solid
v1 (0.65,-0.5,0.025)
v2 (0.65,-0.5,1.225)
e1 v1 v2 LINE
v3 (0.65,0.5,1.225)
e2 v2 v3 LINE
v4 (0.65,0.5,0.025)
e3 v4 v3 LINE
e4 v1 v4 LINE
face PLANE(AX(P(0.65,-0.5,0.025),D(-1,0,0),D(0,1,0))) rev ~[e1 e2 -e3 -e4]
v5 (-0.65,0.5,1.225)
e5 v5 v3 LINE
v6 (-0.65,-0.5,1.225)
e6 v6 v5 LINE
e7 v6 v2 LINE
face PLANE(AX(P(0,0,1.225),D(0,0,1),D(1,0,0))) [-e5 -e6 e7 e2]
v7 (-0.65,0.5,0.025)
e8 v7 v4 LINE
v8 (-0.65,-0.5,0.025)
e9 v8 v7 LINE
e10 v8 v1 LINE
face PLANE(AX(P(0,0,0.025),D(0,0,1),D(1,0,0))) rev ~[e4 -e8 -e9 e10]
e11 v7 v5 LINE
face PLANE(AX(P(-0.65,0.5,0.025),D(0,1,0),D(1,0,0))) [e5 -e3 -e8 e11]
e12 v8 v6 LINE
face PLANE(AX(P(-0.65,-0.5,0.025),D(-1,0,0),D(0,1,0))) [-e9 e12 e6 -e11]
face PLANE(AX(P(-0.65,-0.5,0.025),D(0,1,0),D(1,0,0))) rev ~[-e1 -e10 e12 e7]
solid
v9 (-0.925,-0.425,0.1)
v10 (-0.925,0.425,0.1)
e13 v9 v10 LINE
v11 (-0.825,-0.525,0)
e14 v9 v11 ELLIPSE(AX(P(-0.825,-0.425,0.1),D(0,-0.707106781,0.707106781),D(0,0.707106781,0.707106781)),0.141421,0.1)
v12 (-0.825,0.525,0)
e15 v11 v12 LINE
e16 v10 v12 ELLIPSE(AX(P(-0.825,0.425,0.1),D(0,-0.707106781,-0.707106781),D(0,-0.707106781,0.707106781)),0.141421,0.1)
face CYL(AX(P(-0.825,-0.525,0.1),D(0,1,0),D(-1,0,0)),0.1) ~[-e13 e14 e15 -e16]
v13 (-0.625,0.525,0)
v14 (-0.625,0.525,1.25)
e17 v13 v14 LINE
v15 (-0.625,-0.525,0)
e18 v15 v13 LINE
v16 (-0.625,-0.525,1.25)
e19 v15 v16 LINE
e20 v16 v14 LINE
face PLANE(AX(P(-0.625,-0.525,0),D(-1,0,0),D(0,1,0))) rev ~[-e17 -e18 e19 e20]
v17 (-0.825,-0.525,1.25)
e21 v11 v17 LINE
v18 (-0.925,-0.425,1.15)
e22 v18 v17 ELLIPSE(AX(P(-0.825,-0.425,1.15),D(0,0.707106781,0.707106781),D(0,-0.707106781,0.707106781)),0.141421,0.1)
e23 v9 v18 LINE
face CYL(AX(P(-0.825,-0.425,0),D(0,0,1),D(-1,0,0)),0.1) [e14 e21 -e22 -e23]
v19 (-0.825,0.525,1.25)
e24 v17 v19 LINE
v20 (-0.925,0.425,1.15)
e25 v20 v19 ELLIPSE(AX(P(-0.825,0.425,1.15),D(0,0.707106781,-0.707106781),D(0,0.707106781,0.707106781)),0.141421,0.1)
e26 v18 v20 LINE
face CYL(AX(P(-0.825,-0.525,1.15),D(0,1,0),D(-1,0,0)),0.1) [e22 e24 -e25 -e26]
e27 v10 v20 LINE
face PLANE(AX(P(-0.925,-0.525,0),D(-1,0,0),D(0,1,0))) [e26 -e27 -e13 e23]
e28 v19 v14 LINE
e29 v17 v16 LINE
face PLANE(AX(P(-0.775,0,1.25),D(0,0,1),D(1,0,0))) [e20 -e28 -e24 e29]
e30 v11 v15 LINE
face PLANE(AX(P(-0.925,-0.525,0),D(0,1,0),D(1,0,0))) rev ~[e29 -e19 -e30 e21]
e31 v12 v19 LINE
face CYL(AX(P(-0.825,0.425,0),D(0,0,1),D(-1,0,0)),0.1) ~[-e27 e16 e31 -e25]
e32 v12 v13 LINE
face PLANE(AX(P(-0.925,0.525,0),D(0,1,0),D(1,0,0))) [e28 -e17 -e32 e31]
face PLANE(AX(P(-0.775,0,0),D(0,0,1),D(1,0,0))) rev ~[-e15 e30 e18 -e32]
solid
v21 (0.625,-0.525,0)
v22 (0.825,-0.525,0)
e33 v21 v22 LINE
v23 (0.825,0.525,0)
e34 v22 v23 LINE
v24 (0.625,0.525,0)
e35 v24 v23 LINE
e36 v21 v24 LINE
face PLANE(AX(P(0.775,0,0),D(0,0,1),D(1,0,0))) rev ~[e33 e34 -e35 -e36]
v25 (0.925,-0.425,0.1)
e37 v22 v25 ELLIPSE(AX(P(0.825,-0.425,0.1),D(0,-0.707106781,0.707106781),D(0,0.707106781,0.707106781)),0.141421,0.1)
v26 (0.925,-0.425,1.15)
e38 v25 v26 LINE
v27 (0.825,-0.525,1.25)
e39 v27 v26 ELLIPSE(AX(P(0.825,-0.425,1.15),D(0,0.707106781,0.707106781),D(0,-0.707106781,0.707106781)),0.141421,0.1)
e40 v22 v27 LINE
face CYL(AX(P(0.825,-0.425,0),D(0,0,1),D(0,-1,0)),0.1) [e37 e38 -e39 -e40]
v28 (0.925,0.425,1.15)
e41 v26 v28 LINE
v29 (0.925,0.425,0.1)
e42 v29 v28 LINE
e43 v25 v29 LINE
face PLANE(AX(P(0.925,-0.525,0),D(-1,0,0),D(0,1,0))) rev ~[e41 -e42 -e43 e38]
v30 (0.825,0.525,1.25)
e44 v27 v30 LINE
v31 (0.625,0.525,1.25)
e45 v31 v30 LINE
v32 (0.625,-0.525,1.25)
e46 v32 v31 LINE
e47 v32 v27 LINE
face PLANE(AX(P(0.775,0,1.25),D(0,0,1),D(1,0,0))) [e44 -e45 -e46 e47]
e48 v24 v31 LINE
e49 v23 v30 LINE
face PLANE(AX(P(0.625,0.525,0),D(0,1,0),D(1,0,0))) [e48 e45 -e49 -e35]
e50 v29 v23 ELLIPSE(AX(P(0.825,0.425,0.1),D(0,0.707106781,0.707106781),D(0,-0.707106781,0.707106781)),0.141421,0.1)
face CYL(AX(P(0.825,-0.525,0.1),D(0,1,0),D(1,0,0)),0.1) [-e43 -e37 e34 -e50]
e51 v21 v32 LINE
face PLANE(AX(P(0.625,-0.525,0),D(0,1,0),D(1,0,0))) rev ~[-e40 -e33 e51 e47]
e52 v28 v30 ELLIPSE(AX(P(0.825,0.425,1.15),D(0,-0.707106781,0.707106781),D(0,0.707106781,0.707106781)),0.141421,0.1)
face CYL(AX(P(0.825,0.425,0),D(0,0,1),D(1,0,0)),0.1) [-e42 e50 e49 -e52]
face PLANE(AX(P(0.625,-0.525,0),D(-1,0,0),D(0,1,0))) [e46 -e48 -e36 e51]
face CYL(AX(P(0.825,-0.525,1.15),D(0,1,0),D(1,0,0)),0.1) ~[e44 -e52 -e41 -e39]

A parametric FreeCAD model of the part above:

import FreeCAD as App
import Part
import Sketcher
from FreeCAD import Vector


def edges_at(feature, points):
    """Names of the edges that pass closest to the given points."""
    edges = feature.Shape.Edges
    near = lambda p: min(range(len(edges)), key=lambda i: edges[i].distToShape(Part.Vertex(*p))[0])
    return sorted({f"Edge{near(p) + 1}" for p in points})


def add_polygon(sketch, points):
    """Adds a closed chain of lines whose ends are joined by coincident constraints."""
    first, n = sketch.GeometryCount, len(points)
    for a, b in zip(points, points[1:] + points[:1]):
        sketch.addGeometry(Part.LineSegment(App.Vector(*a, 0), App.Vector(*b, 0)), False)
    for i in range(n):
        sketch.addConstraint(Sketcher.Constraint("Coincident", first + i, 2, first + (i + 1) % n, 1))

doc = App.newDocument("Part")
params = doc.addObject("Spreadsheet::Sheet", "Params")
for row, (alias, value) in enumerate([
    ("sketch1_height", "1 mm"),
    ("sketch1_width", "1.3 mm"),
    ("pad1_length", "1.2 mm"),
    ("sketch2_width", "0.3 mm"),
    ("sketch2_height", "1.05 mm"),
    ("pad2_length", "1.25 mm"),
    ("fillet_radius", "0.1 mm"),
], start=1):
    params.set(f"A{row}", alias)
    params.set(f"B{row}", "=" + value)
    params.setAlias(f"B{row}", alias)

body = doc.addObject("PartDesign::Body", "Body")

sketch1 = body.newObject("Sketcher::SketchObject", "Sketch")
sketch1.AttachmentSupport = (doc.getObject("XY_Plane"), [""])
sketch1.MapMode = "FlatFace"
sketch1.AttachmentOffset = App.Placement(Vector(0, 0, 0.025), App.Rotation())
add_polygon(sketch1, [(-0.7, 0.5), (-0.7, -0.5), (0.7, -0.5), (0.7, 0.5)])
sketch1.addConstraint(Sketcher.Constraint("Vertical", 0))
sketch1.addConstraint(Sketcher.Constraint("Horizontal", 1))
sketch1.addConstraint(Sketcher.Constraint("Vertical", 2))
sketch1.addConstraint(Sketcher.Constraint("Horizontal", 3))
sketch1.addConstraint(Sketcher.Constraint("Symmetric", 0, 2, 2, 2, -1, 1))
sketch1.addConstraint(Sketcher.Constraint("DistanceY", 0, 2, 0, 1, 1.0))
sketch1.addConstraint(Sketcher.Constraint("DistanceX", 1, 1, 1, 2, 1.3))
sketch1.setExpression("Constraints[9]", "Params.sketch1_height")
sketch1.setExpression("Constraints[10]", "Params.sketch1_width")
pad1 = body.newObject("PartDesign::Pad", "Pad")
pad1.Profile = sketch1
pad1.setExpression("Length", "Params.pad1_length")
body2 = doc.addObject("PartDesign::Body", "Body001")
body2.AllowCompound = True

sketch2 = body2.newObject("Sketcher::SketchObject", "Sketch001")
sketch2.AttachmentSupport = (doc.getObject("XY_Plane001"), [""])
sketch2.MapMode = "FlatFace"
add_polygon(sketch2, [(-0.93, 0.53), (-0.93, -0.53), (-0.62, -0.53), (-0.62, 0.53)])
add_polygon(sketch2, [(0.62, 0.53), (0.62, -0.53), (0.93, -0.53), (0.93, 0.53)])
sketch2.addConstraint(Sketcher.Constraint("Vertical", 0))
sketch2.addConstraint(Sketcher.Constraint("Horizontal", 1))
sketch2.addConstraint(Sketcher.Constraint("Vertical", 2))
sketch2.addConstraint(Sketcher.Constraint("Horizontal", 3))
sketch2.addConstraint(Sketcher.Constraint("Vertical", 4))
sketch2.addConstraint(Sketcher.Constraint("Horizontal", 5))
sketch2.addConstraint(Sketcher.Constraint("Vertical", 6))
sketch2.addConstraint(Sketcher.Constraint("Horizontal", 7))
sketch2.addConstraint(Sketcher.Constraint("Symmetric", 2, 2, 4, 2, -1, 1))
sketch2.addConstraint(Sketcher.Constraint("Symmetric", 0, 2, 6, 2, -1, 1))
sketch2.addConstraint(Sketcher.Constraint("Horizontal", 1, 2, 4, 2))
sketch2.addConstraint(Sketcher.Constraint("DistanceX", 1, 1, 1, 2, 0.3))
sketch2.addConstraint(Sketcher.Constraint("DistanceY", 0, 2, 0, 1, 1.05))
sketch2.addConstraint(Sketcher.Constraint("DistanceX", 1, 2, 4, 2, 1.25))
sketch2.setExpression("Constraints[19]", "Params.sketch2_width")
sketch2.setExpression("Constraints[20]", "Params.sketch2_height")
pad2 = body2.newObject("PartDesign::Pad", "Pad001")
pad2.Profile = sketch2
pad2.setExpression("Length", "Params.pad2_length")
doc.recompute()

fillet = body2.newObject("PartDesign::Fillet", "Fillet")
fillet.Base = (pad2, edges_at(pad2, [
    (0.925, 0.525, 0.625),
    (0.925, -0.525, 0.625),
    (0.925, 0, 0),
    (0.925, 0, 1.25),
    (-0.925, 0.525, 0.625),
    (-0.925, -0.525, 0.625),
    (-0.925, 0, 0),
    (-0.925, 0, 1.25),
]))
fillet.setExpression("Radius", "Params.fillet_radius")

doc.recompute()
